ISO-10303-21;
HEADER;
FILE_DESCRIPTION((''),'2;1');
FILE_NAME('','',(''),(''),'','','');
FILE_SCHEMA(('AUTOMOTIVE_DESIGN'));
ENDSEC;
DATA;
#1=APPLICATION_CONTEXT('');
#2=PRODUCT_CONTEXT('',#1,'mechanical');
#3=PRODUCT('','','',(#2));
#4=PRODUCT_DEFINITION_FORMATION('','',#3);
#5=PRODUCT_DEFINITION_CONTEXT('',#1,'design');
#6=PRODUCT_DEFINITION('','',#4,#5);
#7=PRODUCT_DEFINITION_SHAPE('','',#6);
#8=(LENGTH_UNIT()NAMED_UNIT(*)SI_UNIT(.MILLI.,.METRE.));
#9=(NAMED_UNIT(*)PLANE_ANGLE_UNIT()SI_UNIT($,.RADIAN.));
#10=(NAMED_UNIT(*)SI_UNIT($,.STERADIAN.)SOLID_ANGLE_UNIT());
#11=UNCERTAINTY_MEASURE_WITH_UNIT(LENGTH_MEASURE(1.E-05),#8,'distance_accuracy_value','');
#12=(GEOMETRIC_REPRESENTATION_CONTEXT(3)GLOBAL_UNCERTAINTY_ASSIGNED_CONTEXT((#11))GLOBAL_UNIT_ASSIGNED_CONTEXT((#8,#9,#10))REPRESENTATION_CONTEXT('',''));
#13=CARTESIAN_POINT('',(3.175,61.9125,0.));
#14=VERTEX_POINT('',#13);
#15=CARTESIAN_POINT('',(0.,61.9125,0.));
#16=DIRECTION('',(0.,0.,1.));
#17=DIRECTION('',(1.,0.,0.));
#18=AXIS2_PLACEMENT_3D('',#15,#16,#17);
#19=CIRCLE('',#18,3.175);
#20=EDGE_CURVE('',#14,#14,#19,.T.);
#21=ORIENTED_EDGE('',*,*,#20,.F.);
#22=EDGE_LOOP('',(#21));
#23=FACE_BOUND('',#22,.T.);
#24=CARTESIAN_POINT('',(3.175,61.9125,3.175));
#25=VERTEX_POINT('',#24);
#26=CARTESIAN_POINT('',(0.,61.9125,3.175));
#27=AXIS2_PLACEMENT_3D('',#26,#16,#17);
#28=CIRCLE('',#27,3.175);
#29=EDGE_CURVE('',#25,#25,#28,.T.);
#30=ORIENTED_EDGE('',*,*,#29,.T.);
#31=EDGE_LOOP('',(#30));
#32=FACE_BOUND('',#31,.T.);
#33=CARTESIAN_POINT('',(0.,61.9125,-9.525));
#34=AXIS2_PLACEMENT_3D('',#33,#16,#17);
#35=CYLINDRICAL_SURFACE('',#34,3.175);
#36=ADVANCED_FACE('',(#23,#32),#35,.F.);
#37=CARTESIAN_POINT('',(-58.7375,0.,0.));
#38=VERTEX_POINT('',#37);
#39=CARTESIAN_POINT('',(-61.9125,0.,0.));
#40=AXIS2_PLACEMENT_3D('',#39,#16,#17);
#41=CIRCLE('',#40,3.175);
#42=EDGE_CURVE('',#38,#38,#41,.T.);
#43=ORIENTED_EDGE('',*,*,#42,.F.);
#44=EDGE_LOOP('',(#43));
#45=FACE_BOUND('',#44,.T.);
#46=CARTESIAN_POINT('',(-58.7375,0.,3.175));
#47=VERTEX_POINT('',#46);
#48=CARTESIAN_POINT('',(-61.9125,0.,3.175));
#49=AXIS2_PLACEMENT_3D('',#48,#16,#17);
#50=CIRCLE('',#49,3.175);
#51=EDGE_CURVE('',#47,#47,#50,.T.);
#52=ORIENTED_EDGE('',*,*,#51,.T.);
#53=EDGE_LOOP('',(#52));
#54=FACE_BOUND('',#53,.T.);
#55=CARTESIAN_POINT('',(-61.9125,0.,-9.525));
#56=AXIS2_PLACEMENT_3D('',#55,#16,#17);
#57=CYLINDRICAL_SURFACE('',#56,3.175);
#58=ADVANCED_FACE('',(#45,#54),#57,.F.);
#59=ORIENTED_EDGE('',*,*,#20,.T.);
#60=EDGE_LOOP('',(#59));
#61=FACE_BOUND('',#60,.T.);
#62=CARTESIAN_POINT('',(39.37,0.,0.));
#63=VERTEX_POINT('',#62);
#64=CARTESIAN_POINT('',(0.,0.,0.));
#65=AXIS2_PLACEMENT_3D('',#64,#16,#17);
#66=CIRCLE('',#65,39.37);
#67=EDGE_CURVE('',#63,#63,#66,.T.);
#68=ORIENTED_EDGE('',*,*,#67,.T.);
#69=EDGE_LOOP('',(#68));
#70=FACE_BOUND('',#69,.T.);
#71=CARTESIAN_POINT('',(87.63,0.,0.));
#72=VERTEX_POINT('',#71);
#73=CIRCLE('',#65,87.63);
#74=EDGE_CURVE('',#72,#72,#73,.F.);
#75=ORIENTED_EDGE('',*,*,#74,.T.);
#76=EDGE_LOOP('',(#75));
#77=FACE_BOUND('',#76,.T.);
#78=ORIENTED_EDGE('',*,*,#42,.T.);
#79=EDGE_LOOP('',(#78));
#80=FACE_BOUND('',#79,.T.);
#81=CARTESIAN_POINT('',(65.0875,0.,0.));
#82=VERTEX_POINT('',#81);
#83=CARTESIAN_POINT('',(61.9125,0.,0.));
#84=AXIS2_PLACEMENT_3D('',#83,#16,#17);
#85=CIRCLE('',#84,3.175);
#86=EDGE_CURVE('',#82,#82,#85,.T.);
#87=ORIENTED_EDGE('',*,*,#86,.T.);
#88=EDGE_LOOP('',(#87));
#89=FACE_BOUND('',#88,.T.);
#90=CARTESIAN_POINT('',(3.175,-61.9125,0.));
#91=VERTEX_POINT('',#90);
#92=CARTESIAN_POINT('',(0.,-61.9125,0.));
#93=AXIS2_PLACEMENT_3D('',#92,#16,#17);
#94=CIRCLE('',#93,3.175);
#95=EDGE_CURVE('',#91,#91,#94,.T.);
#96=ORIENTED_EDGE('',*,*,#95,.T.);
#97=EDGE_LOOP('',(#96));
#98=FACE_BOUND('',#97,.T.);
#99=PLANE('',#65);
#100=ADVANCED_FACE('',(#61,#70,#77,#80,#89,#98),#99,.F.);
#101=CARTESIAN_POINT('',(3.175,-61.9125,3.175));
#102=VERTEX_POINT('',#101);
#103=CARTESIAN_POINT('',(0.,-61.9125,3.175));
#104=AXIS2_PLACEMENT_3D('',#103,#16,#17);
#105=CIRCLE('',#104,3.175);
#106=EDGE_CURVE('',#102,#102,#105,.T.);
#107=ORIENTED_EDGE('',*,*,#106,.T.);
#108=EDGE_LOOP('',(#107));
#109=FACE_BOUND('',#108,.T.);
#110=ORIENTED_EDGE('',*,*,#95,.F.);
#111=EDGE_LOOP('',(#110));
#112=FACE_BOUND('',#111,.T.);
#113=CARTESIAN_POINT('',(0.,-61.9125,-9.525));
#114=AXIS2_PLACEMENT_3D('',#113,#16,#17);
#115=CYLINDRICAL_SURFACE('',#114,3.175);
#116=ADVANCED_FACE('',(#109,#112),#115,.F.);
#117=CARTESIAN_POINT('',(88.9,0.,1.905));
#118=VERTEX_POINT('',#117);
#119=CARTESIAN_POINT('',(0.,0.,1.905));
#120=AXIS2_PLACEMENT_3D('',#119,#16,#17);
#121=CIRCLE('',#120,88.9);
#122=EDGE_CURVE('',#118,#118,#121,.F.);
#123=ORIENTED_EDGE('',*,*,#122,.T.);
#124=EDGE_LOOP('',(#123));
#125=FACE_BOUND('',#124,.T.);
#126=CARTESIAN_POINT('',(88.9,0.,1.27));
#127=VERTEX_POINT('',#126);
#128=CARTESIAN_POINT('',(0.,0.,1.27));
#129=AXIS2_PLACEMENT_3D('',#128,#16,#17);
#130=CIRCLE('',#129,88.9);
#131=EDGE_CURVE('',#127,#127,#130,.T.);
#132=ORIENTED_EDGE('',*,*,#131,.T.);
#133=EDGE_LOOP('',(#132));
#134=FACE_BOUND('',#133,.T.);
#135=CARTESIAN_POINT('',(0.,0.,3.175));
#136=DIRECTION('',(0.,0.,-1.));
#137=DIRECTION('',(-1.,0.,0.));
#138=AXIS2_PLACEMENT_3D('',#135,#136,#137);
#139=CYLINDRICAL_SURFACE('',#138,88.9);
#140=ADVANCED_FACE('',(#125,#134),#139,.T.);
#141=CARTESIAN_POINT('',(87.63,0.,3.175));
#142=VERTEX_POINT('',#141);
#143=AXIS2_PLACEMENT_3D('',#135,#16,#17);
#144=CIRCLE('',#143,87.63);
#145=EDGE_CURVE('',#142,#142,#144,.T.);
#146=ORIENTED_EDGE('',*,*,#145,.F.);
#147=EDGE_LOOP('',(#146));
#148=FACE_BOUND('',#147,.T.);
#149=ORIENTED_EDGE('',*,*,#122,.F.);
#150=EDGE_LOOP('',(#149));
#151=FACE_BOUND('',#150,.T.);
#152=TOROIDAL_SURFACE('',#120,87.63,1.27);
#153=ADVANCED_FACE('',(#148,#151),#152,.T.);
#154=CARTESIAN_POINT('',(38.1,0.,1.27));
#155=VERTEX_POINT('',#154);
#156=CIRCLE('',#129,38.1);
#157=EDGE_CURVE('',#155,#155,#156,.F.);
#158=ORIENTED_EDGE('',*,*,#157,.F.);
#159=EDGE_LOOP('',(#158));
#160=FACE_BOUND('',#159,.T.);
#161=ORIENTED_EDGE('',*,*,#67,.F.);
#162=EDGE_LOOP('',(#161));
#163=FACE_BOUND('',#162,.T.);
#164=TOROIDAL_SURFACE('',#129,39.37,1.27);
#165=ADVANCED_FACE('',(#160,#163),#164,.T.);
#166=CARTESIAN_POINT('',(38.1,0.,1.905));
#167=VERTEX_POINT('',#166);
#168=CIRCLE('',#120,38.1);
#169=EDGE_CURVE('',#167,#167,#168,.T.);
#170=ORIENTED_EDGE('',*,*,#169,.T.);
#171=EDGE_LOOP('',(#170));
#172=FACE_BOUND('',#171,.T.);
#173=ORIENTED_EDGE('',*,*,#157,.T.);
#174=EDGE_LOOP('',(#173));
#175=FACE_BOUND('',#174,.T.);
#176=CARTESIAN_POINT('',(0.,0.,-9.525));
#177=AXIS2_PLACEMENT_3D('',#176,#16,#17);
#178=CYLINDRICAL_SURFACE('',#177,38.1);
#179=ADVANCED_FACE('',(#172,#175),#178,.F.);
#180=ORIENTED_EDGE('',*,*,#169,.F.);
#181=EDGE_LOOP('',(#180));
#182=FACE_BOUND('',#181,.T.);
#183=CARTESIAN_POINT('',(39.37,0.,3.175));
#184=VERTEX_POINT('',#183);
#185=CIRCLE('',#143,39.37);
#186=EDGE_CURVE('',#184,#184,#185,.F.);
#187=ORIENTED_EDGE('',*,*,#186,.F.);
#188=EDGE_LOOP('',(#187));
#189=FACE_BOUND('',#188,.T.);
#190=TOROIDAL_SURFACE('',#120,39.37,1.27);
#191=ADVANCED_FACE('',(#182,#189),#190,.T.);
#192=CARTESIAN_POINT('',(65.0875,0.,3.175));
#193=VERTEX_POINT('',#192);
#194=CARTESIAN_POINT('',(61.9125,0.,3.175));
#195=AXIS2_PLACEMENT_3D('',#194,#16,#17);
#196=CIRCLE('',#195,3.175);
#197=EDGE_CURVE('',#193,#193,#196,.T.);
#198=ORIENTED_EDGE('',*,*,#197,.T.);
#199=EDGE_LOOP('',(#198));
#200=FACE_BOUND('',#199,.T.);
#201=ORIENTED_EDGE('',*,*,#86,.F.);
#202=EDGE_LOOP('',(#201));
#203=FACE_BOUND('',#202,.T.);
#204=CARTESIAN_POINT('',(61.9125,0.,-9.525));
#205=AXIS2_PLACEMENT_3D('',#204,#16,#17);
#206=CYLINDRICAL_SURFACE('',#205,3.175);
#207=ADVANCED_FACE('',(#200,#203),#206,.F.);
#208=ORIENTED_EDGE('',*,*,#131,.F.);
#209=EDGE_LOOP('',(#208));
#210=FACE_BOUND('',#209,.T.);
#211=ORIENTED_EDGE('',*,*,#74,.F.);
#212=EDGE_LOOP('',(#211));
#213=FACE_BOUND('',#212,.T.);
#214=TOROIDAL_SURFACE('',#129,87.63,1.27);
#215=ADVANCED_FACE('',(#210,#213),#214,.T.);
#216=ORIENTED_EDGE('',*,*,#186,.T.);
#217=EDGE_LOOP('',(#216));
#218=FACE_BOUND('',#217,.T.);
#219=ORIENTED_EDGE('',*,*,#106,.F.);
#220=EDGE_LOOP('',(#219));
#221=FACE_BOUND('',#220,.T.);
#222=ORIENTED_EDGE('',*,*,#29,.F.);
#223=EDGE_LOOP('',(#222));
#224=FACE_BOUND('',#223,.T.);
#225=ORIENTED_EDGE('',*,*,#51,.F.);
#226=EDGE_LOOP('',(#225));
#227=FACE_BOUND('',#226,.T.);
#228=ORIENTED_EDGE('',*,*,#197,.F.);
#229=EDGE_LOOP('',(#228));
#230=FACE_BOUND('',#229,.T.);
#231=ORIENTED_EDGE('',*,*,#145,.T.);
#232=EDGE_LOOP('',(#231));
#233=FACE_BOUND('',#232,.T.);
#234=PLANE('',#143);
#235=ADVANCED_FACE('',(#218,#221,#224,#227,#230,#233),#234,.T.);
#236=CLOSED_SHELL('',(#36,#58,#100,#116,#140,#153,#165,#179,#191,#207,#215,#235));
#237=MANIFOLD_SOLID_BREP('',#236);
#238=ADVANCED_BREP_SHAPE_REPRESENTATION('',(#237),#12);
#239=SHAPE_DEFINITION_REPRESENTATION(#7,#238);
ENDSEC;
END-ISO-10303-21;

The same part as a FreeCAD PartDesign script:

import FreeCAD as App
import Part
import Sketcher

V = App.Vector
Q = App.Units.Quantity


def edges_at(feature, points):
    """Names of the edges that pass closest to the given points."""
    edges = feature.Shape.Edges
    near = lambda p: min(range(len(edges)), key=lambda i: edges[i].distToShape(Part.Vertex(*p))[0])
    return sorted({f"Edge{near(p) + 1}" for p in points})

doc = App.newDocument("Part")
body = doc.addObject("PartDesign::Body", "Body")

# Sketch on XY plane
sketch1 = body.newObject("Sketcher::SketchObject", "Sketch")
sketch1.AttachmentSupport = (doc.getObject("XY_Plane"), [""])
sketch1.MapMode = "FlatFace"
sketch1.addGeometry(Part.Circle(V(0, 0, 0), V(0, 0, 1), 89), False)
sketch1.addConstraint(Sketcher.Constraint("Coincident", 0, 3, -1, 1))
sketch1.addConstraint(Sketcher.Constraint("Diameter", 0, Q("7 in")))
pad1 = body.newObject("PartDesign::Pad", "Pad")
pad1.Profile = sketch1
pad1.Length = Q("0.125 in")
doc.recompute()

fillet = body.newObject("PartDesign::Fillet", "Fillet")
fillet.Base = (pad1, edges_at(pad1, [(-88.9, 0, 0), (-88.9, 0, 3.175)]))
fillet.Radius = Q("0.05 in")

# Sketch on XY plane
sketch2 = body.newObject("Sketcher::SketchObject", "Sketch001")
sketch2.AttachmentSupport = (doc.getObject("XY_Plane"), [""])
sketch2.MapMode = "FlatFace"
sketch2.AttachmentOffset = App.Placement(V(0, 0, 0.125 * 25.4), App.Rotation())
sketch2.addGeometry(Part.Circle(V(0, 0, 0), V(0, 0, 1), 38.1), False)
sketch2.addGeometry(Part.Circle(V(0, 61.9, 0), V(0, 0, 1), 3.2), False)
sketch2.addGeometry(Part.Circle(V(61.9, 0, 0), V(0, 0, 1), 3.2), False)
sketch2.addGeometry(Part.Circle(V(0, -61.9, 0), V(0, 0, 1), 3.2), False)
sketch2.addGeometry(Part.Circle(V(-61.9, 0, 0), V(0, 0, 1), 3.2), False)
sketch2.addConstraint(Sketcher.Constraint("Coincident", 0, 3, -1, 1))
sketch2.addConstraint(Sketcher.Constraint("Equal", 1, 2))
sketch2.addConstraint(Sketcher.Constraint("Equal", 2, 3))
sketch2.addConstraint(Sketcher.Constraint("Equal", 3, 4))
sketch2.addConstraint(Sketcher.Constraint("Symmetric", 1, 3, 3, 3, -1, 1))
sketch2.addConstraint(Sketcher.Constraint("Symmetric", 2, 3, 4, 3, -1, 1))
sketch2.addConstraint(Sketcher.Constraint("PointOnObject", 1, 3, -2))
sketch2.addConstraint(Sketcher.Constraint("PointOnObject", 2, 3, -1))
sketch2.addConstraint(Sketcher.Constraint("Diameter", 0, Q("3 in")))
sketch2.addConstraint(Sketcher.Constraint("Diameter", 1, Q("0.25 in")))
sketch2.addConstraint(Sketcher.Constraint("DistanceY", -1, 1, 1, 3, Q("2.4375 in")))
sketch2.addConstraint(Sketcher.Constraint("DistanceX", -1, 1, 2, 3, Q("2.4375 in")))
pocket1 = body.newObject("PartDesign::Pocket", "Pocket")
pocket1.Profile = sketch2
pocket1.Length = Q("0.5 in")
doc.recompute()

fillet2 = body.newObject("PartDesign::Fillet", "Fillet001")
fillet2.Base = (pocket1, edges_at(pocket1, [(-38.1, 0, 0), (-38.1, 0, 3.175)]))
fillet2.Radius = Q("0.05 in")

doc.recompute()
